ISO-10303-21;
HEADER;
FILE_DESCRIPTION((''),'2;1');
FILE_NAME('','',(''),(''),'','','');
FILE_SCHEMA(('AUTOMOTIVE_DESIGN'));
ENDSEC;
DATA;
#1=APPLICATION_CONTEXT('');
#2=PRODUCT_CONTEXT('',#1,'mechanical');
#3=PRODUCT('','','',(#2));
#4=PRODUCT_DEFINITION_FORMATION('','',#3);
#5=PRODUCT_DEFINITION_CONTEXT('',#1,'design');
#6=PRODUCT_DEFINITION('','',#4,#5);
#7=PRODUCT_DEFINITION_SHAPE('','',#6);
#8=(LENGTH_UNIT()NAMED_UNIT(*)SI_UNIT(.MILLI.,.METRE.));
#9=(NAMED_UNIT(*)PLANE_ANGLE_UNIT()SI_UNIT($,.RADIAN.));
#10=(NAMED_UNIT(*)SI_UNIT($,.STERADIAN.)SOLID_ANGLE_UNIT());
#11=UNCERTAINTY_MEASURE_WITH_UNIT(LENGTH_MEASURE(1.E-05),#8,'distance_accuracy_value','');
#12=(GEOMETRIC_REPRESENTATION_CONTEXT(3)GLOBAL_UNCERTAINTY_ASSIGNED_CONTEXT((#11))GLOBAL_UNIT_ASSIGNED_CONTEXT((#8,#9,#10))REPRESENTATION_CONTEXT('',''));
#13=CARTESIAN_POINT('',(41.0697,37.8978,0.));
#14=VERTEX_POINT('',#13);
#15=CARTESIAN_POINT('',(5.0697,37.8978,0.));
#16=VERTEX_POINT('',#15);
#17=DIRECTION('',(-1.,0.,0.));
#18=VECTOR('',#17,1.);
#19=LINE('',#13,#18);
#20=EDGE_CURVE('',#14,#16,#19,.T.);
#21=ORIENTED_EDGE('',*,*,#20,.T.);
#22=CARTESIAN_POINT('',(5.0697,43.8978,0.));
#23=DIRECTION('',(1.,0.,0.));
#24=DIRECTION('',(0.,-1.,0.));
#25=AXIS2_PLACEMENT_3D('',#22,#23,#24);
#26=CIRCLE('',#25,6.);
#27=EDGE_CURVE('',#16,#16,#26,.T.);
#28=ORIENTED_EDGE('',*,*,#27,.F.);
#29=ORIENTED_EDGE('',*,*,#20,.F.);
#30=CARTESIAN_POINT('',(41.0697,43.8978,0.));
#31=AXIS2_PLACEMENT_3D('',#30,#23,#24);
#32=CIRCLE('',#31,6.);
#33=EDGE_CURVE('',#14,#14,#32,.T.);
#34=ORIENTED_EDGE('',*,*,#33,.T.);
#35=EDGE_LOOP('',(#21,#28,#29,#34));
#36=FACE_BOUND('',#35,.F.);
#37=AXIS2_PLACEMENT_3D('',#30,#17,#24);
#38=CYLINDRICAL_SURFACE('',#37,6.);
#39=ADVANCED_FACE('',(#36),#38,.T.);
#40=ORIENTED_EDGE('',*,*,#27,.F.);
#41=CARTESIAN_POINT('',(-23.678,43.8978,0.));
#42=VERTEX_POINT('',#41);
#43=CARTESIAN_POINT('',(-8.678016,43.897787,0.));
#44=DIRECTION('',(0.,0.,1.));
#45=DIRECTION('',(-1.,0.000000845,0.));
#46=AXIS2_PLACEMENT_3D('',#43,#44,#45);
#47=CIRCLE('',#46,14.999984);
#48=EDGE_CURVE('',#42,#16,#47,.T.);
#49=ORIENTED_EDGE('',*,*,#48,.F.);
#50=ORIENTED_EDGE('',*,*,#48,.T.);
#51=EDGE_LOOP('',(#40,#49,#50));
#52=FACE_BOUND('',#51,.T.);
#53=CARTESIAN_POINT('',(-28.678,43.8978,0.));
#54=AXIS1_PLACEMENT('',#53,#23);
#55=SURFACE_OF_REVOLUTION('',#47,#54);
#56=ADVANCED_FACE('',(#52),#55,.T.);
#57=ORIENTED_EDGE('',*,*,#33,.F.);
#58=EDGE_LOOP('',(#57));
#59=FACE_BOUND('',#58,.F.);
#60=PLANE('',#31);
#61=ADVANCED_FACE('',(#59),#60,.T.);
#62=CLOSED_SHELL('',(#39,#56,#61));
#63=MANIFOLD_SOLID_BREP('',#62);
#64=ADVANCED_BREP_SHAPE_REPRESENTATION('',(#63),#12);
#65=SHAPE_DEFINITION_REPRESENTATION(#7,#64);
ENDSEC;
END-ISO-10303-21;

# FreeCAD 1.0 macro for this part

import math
import FreeCAD as App
import Part
import Sketcher
from FreeCAD import Vector

doc = App.newDocument("Part")
params = doc.addObject("Spreadsheet::Sheet", "Params")
for row, (alias, value) in enumerate([
    ("sketch1_radius", "15 mm"),
    ("sketch1_width", "36 mm"),
    ("sketch1_height", "6 mm"),
    ("revolution_angle", "360 deg"),
], start=1):
    params.set(f"A{row}", alias)
    params.set(f"B{row}", "=" + value)
    params.setAlias(f"B{row}", alias)

body = doc.addObject("PartDesign::Body", "Body")

sketch1 = body.newObject("Sketcher::SketchObject", "Sketch")
sketch1.AttachmentSupport = (doc.getObject("XY_Plane"), [""])
sketch1.MapMode = "FlatFace"
sketch1.addGeometry(Part.LineSegment(Vector(41, 38, 0), Vector(41, 44, 0)), False)
sketch1.addGeometry(Part.LineSegment(Vector(41, 44, 0), Vector(-24, 44, 0)), False)
sketch1.addGeometry(Part.ArcOfCircle(Part.Circle(Vector(-9, 44, 0), Vector(0, 0, 1), 15), math.radians(180), math.radians(336)), False)
sketch1.addGeometry(Part.LineSegment(Vector(5, 38, 0), Vector(41, 38, 0)), False)
sketch1.addGeometry(Part.LineSegment(Vector(-24, 44, 0), Vector(41, 44, 0)), True)
sketch1.addConstraint(Sketcher.Constraint("Coincident", 0, 2, 1, 1))
sketch1.addConstraint(Sketcher.Constraint("Coincident", 1, 2, 2, 1))
sketch1.addConstraint(Sketcher.Constraint("Coincident", 2, 2, 3, 1))
sketch1.addConstraint(Sketcher.Constraint("Coincident", 3, 2, 0, 1))
sketch1.addConstraint(Sketcher.Constraint("Vertical", 0))
sketch1.addConstraint(Sketcher.Constraint("Horizontal", 1))
sketch1.addConstraint(Sketcher.Constraint("Horizontal", 3))
sketch1.addConstraint(Sketcher.Constraint("Horizontal", 4))
sketch1.addConstraint(Sketcher.Constraint("Coincident", 4, 1, 1, 2))
sketch1.addConstraint(Sketcher.Constraint("Horizontal", 2, 3, 0, 2))
sketch1.addConstraint(Sketcher.Constraint("Vertical", 3, 2, 4, 2))
sketch1.addConstraint(Sketcher.Constraint("Radius", 2, 15.0))
sketch1.addConstraint(Sketcher.Constraint("DistanceX", 3, 1, 3, 2, 36.0))
sketch1.addConstraint(Sketcher.Constraint("DistanceY", 0, 1, 0, 2, 6.0))
sketch1.addConstraint(Sketcher.Constraint("DistanceX", 2, 3, -1, 1, 8.678))
sketch1.addConstraint(Sketcher.Constraint("DistanceY", -1, 1, 2, 3, 43.8978))
sketch1.setExpression("Constraints[11]", "Params.sketch1_radius")
sketch1.setExpression("Constraints[12]", "Params.sketch1_width")
sketch1.setExpression("Constraints[13]", "Params.sketch1_height")
revolution = body.newObject("PartDesign::Revolution", "Revolution")
revolution.Profile = sketch1
revolution.ReferenceAxis = (sketch1, ["Axis0"])
revolution.setExpression("Angle", "Params.revolution_angle")

doc.recompute()
